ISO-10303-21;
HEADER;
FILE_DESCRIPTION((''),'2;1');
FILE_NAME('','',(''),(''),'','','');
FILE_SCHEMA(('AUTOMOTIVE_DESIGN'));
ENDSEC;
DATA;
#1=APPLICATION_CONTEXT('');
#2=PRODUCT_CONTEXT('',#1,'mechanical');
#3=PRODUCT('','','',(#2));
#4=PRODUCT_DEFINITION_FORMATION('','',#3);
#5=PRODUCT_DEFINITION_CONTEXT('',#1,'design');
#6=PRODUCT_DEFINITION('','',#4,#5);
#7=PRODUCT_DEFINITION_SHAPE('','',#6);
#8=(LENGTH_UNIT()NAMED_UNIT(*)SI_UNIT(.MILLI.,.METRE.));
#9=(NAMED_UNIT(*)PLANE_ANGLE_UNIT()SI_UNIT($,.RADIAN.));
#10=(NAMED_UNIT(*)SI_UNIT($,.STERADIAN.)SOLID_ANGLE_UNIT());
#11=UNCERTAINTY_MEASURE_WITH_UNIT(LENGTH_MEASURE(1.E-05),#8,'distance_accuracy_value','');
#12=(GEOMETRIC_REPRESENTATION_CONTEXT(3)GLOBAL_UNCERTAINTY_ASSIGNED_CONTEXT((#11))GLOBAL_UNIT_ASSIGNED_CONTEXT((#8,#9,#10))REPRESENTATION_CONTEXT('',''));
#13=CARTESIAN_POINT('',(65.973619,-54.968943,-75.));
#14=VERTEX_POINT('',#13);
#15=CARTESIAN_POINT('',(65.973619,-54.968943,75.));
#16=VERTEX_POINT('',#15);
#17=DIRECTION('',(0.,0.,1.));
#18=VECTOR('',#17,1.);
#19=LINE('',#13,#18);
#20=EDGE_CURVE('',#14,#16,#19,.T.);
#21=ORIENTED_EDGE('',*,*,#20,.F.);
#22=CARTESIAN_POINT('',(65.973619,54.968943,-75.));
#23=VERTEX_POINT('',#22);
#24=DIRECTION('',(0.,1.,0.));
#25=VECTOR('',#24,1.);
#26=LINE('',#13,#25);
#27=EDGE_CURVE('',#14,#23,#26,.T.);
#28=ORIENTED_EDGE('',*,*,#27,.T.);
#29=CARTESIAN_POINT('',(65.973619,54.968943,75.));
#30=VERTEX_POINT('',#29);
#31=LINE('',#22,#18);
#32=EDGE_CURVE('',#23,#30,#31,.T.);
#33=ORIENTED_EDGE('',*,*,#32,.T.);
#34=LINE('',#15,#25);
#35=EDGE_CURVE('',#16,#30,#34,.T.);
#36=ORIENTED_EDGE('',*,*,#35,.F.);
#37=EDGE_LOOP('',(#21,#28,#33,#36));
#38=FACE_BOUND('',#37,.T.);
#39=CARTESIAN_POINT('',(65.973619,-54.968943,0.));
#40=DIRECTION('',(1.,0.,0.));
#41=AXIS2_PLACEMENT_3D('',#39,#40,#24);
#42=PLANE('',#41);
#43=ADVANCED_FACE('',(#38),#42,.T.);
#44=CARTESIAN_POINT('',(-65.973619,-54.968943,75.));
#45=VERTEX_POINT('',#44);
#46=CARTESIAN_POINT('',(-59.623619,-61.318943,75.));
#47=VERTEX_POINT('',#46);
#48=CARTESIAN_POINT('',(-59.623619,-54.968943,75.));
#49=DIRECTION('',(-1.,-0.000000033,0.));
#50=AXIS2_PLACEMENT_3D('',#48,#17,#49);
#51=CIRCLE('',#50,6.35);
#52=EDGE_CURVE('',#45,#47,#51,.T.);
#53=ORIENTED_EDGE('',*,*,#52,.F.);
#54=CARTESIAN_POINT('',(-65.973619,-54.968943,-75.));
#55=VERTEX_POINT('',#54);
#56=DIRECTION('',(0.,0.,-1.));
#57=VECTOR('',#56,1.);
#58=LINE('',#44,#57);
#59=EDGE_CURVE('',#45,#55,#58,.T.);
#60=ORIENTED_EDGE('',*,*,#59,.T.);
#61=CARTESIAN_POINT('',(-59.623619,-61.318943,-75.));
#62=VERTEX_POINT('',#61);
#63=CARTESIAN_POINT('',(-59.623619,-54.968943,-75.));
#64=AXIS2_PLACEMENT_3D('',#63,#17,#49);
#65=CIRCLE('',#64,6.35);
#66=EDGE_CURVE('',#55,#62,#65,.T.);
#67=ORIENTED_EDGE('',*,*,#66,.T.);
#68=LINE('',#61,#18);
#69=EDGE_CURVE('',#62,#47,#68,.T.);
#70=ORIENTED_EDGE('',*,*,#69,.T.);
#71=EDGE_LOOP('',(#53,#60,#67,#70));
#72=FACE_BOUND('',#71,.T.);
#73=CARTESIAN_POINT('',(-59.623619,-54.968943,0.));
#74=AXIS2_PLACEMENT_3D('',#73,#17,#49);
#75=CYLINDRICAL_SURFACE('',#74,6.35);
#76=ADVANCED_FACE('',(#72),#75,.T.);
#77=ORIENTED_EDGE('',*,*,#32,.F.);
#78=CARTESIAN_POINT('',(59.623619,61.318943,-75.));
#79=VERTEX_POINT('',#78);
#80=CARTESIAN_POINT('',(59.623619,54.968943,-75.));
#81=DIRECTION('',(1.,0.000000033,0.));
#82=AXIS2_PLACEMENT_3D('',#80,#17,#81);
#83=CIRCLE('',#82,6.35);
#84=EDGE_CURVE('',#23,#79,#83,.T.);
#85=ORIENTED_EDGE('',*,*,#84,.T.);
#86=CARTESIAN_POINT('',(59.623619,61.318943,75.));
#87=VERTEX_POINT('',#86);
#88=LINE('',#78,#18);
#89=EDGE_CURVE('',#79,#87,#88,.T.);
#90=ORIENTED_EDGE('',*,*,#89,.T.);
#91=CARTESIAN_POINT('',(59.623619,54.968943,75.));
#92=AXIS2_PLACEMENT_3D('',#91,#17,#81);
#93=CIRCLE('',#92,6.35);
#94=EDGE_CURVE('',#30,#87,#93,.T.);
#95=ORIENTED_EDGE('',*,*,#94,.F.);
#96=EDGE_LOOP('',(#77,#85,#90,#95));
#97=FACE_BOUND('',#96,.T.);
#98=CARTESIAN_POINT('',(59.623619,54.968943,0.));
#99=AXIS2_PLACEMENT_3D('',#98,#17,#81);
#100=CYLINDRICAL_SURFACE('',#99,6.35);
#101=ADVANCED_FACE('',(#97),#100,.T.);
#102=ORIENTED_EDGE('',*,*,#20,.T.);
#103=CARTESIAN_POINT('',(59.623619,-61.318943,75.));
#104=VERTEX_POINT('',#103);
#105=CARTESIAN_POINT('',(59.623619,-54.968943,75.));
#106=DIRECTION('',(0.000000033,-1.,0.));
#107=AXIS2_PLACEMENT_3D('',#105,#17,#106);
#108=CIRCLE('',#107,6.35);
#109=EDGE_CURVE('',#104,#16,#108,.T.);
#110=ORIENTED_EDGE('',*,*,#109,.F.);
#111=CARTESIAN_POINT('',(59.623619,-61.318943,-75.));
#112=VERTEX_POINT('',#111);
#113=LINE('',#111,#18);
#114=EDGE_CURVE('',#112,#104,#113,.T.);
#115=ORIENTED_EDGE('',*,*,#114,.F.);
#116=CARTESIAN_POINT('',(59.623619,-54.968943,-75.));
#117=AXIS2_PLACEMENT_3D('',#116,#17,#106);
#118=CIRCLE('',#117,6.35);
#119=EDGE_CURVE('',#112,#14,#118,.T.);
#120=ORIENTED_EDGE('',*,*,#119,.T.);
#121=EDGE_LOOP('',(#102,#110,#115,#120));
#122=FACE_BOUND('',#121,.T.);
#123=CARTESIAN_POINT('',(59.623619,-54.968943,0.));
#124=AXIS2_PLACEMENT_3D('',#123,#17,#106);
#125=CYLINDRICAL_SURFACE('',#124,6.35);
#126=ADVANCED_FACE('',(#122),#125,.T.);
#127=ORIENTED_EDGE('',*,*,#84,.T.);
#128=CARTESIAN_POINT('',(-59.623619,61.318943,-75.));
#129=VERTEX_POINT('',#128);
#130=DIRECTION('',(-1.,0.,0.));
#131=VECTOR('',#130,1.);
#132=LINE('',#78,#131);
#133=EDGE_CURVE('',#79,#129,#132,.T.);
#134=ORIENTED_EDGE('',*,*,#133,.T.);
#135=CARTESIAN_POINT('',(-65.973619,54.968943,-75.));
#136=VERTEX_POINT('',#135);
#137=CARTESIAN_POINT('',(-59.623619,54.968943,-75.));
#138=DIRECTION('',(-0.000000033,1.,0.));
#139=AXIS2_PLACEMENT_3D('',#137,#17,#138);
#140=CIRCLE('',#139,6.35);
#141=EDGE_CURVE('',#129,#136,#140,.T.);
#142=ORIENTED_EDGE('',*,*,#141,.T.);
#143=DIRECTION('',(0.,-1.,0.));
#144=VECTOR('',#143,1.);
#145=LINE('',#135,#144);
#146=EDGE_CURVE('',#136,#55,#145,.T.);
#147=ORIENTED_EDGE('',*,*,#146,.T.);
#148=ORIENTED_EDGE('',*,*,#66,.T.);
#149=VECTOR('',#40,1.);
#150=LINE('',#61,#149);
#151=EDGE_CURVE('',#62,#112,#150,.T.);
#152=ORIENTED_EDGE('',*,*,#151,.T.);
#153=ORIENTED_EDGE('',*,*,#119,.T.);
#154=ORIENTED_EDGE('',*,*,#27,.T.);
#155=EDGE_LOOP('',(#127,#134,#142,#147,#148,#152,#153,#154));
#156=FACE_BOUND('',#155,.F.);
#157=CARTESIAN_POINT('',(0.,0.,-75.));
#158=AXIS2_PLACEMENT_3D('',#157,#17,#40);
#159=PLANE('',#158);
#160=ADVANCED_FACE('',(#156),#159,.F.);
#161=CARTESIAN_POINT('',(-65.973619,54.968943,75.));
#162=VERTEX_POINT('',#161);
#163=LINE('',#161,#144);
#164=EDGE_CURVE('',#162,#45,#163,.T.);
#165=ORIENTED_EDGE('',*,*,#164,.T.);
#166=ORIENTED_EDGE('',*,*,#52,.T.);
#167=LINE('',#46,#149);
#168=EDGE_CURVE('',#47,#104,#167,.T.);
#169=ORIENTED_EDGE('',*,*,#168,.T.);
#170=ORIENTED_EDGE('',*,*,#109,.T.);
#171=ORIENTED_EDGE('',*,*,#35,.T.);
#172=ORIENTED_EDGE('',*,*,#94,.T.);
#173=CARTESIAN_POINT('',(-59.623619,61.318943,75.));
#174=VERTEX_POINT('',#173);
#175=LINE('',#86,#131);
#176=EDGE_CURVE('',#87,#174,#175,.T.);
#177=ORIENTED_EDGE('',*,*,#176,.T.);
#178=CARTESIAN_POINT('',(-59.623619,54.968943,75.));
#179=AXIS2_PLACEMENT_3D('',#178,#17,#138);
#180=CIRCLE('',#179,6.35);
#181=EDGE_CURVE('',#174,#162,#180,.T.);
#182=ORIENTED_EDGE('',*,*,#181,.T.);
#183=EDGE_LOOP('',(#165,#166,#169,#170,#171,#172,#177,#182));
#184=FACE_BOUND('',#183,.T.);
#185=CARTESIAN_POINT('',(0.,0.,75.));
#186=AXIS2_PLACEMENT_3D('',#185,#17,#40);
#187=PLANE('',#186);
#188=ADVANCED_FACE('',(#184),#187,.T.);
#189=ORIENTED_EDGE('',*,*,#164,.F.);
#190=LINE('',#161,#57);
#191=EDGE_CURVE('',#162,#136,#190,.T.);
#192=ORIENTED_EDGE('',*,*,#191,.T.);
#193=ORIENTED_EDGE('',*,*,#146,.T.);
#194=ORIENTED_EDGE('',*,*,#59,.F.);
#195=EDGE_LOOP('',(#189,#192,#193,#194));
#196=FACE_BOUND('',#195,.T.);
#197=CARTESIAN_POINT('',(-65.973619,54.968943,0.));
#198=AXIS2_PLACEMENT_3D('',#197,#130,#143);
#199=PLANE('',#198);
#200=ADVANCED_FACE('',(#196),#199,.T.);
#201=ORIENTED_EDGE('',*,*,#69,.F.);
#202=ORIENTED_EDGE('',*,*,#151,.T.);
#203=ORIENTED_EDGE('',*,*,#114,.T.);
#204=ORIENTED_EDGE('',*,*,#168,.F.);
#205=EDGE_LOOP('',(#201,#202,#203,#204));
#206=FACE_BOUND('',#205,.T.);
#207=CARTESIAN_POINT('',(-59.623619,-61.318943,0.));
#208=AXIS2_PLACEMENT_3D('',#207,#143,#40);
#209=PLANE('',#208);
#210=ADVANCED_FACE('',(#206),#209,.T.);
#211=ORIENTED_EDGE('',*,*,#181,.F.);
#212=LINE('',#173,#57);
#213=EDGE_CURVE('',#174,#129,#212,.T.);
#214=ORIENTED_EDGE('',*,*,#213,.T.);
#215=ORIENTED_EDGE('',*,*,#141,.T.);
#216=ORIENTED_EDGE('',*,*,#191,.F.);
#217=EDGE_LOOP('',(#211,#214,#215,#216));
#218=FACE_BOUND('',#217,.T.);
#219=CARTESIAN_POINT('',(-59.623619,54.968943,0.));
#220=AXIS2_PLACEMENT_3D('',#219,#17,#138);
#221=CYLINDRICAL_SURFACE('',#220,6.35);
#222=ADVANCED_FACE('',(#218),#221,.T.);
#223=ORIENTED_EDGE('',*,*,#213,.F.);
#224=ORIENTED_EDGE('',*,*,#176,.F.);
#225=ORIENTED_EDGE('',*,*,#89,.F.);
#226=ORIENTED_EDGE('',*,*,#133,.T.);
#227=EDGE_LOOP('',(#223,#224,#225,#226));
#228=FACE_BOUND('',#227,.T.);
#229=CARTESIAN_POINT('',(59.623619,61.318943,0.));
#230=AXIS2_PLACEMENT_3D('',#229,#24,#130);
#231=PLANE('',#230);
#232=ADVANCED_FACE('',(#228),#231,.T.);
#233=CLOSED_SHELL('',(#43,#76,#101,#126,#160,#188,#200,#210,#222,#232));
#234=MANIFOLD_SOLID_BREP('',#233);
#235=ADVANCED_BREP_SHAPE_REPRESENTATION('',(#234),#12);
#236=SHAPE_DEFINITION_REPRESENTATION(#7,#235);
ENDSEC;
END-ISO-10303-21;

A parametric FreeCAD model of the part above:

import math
import FreeCAD as App
import Part
import Sketcher

doc = App.newDocument("Part")
body = doc.addObject("PartDesign::Body", "Body")

# Sketch on XY plane
sketch1 = doc.addObject("Sketcher::SketchObject", "Sketch")
body.addObject(sketch1)
sketch1.AttachmentSupport = (doc.XY_Plane, [""])
sketch1.MapMode = "FlatFace"
sketch1.addGeometry(Part.ArcOfCircle(Part.Circle(App.Vector(-60, -55, 0), App.Vector(0, 0, 1), 6), math.radians(-180), math.radians(-90)), False)
sketch1.addGeometry(Part.LineSegment(App.Vector(-60, -61, 0), App.Vector(60, -61, 0)), False)
sketch1.addGeometry(Part.ArcOfCircle(Part.Circle(App.Vector(60, -55, 0), App.Vector(0, 0, 1), 6), math.radians(-90), math.radians(0)), False)
sketch1.addGeometry(Part.LineSegment(App.Vector(66, -55, 0), App.Vector(66, 55, 0)), False)
sketch1.addGeometry(Part.ArcOfCircle(Part.Circle(App.Vector(60, 55, 0), App.Vector(0, 0, 1), 6), math.radians(0), math.radians(90)), False)
sketch1.addGeometry(Part.LineSegment(App.Vector(60, 61, 0), App.Vector(-60, 61, 0)), False)
sketch1.addGeometry(Part.ArcOfCircle(Part.Circle(App.Vector(-60, 55, 0), App.Vector(0, 0, 1), 6), math.radians(90), math.radians(180)), False)
sketch1.addGeometry(Part.LineSegment(App.Vector(-66, 55, 0), App.Vector(-66, -55, 0)), False)
sketch1.addConstraint(Sketcher.Constraint("Tangent", 0, 2, 1, 1))
sketch1.addConstraint(Sketcher.Constraint("Tangent", 1, 2, 2, 1))
sketch1.addConstraint(Sketcher.Constraint("Tangent", 2, 2, 3, 1))
sketch1.addConstraint(Sketcher.Constraint("Tangent", 3, 2, 4, 1))
sketch1.addConstraint(Sketcher.Constraint("Tangent", 4, 2, 5, 1))
sketch1.addConstraint(Sketcher.Constraint("Tangent", 5, 2, 6, 1))
sketch1.addConstraint(Sketcher.Constraint("Tangent", 6, 2, 7, 1))
sketch1.addConstraint(Sketcher.Constraint("Tangent", 7, 2, 0, 1))
sketch1.addConstraint(Sketcher.Constraint("Horizontal", 1))
sketch1.addConstraint(Sketcher.Constraint("Vertical", 3))
sketch1.addConstraint(Sketcher.Constraint("Horizontal", 5))
sketch1.addConstraint(Sketcher.Constraint("Vertical", 7))
sketch1.addConstraint(Sketcher.Constraint("Equal", 0, 2))
sketch1.addConstraint(Sketcher.Constraint("Equal", 2, 4))
sketch1.addConstraint(Sketcher.Constraint("Equal", 4, 6))
sketch1.addConstraint(Sketcher.Constraint("Symmetric", 0, 3, 4, 3, -1, 1))
sketch1.addConstraint(Sketcher.Constraint("Radius", 0, 6.35))
sketch1.addConstraint(Sketcher.Constraint("DistanceX", 1, 1, 1, 2, 119.247238))
sketch1.addConstraint(Sketcher.Constraint("DistanceY", 3, 1, 3, 2, 109.937886))
pad1 = doc.addObject("PartDesign::Pad", "Pad")
body.addObject(pad1)
pad1.Profile = sketch1
pad1.Length = 150
pad1.Midplane = True

doc.recompute()
